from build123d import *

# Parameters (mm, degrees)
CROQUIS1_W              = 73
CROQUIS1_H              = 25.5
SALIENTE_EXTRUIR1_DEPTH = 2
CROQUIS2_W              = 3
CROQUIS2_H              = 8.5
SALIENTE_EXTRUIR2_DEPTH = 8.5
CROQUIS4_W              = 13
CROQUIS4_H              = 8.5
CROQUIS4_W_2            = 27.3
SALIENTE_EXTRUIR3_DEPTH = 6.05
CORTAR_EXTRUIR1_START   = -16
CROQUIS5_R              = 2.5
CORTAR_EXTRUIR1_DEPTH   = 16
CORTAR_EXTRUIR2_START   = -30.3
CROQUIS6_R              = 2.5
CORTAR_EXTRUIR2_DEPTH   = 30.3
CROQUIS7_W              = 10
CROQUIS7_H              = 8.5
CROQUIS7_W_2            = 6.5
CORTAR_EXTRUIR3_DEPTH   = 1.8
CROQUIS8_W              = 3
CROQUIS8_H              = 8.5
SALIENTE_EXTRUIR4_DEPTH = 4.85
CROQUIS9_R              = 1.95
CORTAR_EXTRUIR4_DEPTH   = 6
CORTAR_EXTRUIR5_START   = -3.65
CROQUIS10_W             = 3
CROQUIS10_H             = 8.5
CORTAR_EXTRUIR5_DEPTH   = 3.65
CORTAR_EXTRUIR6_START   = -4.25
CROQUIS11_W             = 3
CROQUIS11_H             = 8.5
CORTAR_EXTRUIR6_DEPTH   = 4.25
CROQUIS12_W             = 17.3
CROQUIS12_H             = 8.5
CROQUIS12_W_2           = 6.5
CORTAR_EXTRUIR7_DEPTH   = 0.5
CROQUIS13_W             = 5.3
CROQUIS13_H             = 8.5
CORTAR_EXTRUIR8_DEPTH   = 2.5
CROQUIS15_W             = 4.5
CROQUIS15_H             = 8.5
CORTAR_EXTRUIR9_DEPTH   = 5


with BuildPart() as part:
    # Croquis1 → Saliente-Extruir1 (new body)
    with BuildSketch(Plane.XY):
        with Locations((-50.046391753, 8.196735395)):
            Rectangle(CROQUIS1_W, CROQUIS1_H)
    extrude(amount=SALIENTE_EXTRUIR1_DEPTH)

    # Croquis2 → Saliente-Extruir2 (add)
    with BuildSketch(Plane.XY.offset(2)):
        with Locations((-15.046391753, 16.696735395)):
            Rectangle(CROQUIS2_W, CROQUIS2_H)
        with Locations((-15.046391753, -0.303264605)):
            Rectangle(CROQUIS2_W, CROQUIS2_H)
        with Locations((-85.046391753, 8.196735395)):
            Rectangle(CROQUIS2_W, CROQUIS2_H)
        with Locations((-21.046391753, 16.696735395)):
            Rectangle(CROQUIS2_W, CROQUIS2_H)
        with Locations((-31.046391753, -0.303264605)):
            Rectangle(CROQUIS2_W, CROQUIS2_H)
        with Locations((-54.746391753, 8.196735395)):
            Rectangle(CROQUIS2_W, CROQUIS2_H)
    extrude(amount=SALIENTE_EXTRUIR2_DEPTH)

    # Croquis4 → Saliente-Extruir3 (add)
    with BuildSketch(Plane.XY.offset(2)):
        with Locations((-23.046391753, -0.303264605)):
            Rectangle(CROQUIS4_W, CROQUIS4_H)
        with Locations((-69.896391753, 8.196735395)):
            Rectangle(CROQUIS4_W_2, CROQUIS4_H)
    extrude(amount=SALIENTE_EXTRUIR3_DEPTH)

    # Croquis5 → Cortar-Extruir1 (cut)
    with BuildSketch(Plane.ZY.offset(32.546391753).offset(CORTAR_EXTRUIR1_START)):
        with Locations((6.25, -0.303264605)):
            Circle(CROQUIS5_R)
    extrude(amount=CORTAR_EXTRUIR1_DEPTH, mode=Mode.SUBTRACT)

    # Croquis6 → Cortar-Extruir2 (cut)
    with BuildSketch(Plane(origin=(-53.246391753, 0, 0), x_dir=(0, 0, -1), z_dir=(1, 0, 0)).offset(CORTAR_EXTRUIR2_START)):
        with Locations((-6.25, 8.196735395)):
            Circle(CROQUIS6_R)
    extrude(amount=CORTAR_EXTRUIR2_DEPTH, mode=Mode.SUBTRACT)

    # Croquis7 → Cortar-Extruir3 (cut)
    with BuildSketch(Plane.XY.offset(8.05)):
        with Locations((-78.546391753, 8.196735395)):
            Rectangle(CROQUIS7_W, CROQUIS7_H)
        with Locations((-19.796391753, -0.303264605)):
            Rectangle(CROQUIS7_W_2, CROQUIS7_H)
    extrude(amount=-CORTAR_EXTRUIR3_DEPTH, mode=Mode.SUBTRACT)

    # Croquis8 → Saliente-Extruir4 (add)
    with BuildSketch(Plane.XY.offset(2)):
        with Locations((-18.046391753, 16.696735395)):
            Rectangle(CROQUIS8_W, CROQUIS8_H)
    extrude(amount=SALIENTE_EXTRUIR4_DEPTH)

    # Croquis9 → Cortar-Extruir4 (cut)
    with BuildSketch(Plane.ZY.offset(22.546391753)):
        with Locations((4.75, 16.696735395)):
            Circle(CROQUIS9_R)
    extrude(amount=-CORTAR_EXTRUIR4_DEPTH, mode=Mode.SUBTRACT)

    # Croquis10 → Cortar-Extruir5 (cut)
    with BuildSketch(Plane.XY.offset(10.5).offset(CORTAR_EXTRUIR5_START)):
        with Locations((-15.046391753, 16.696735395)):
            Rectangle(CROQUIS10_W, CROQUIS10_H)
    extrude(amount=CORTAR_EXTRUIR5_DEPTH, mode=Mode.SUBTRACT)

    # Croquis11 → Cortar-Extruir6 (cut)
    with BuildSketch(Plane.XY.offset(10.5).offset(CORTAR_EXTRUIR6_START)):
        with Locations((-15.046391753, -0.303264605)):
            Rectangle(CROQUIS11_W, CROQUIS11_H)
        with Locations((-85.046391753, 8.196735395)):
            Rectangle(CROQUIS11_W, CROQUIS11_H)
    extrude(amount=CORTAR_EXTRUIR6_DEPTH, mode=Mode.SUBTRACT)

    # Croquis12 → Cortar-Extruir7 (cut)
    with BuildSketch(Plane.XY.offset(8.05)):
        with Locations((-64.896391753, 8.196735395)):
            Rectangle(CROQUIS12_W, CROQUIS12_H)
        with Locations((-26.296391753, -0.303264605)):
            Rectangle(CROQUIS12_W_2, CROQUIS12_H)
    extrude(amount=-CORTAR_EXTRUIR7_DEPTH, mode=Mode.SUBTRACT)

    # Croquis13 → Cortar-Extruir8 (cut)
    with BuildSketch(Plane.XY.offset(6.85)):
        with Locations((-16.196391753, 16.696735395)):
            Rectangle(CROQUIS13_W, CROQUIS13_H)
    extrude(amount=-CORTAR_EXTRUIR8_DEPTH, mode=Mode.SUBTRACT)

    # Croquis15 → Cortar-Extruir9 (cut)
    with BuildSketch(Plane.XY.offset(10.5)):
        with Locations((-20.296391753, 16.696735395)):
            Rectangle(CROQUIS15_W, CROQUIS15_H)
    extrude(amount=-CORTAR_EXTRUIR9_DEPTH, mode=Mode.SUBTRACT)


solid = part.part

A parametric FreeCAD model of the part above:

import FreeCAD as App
import Part
import Sketcher
Q = App.Units.Quantity


def add_polygon(sketch, points):
    """Adds a closed chain of lines whose ends are joined by coincident constraints."""
    first, n = sketch.GeometryCount, len(points)
    for a, b in zip(points, points[1:] + points[:1]):
        sketch.addGeometry(Part.LineSegment(App.Vector(*a, 0), App.Vector(*b, 0)), False)
    for i in range(n):
        sketch.addConstraint(Sketcher.Constraint("Coincident", first + i, 2, first + (i + 1) % n, 1))

doc = App.newDocument("Part")
body = doc.addObject("PartDesign::Body", "Body")

# Sketch on XY plane
sketch1 = body.newObject("Sketcher::SketchObject", "Sketch")
sketch1.AttachmentSupport = (doc.getObject("XY_Plane"), [""])
sketch1.MapMode = "FlatFace"
add_polygon(sketch1, [(-87, 21), (-87, -5), (-14, -5), (-14, 21)])  # lines 0-3
sketch1.addConstraint([
    Sketcher.Constraint("Vertical", 0),
    Sketcher.Constraint("Horizontal", 1),
    Sketcher.Constraint("Vertical", 2),
    Sketcher.Constraint("Horizontal", 3),
    Sketcher.Constraint("DistanceX", 1, 1, 1, 2, Q("73 mm")),
    Sketcher.Constraint("DistanceY", 0, 2, 0, 1, Q("25.5 mm")),
    Sketcher.Constraint("DistanceX", 0, 2, -1, 1, Q("86.546392 mm")),
    Sketcher.Constraint("DistanceY", 0, 2, -1, 1, Q("4.553265 mm")),
])
pad1 = body.newObject("PartDesign::Pad", "Pad")
pad1.Profile = sketch1
pad1.Length = 2

# Sketch on XY plane
sketch2 = body.newObject("Sketcher::SketchObject", "Sketch001")
sketch2.AttachmentSupport = (doc.getObject("XY_Plane"), [""])
sketch2.MapMode = "FlatFace"
sketch2.AttachmentOffset = App.Placement(App.Vector(0, 0, 2), App.Rotation())
add_polygon(sketch2, [(-16.5, 20.9), (-16.5, 12.4), (-13.5, 12.4), (-13.5, 20.9)])  # lines 0-3
add_polygon(sketch2, [(-16.5, 3.9), (-16.5, -4.6), (-13.5, -4.6), (-13.5, 3.9)])  # lines 4-7
add_polygon(sketch2, [(-86.5, 12.4), (-86.5, 3.9), (-83.5, 3.9), (-83.5, 12.4)])  # lines 8-11
add_polygon(sketch2, [(-22.5, 20.9), (-22.5, 12.4), (-19.5, 12.4), (-19.5, 20.9)])  # lines 12-15
add_polygon(sketch2, [(-32.5, 3.9), (-32.5, -4.6), (-29.5, -4.6), (-29.5, 3.9)])  # lines 16-19
add_polygon(sketch2, [(-56.2, 12.4), (-56.2, 3.9), (-53.2, 3.9), (-53.2, 12.4)])  # lines 20-23
sketch2.addConstraint([
    Sketcher.Constraint("Vertical", 0),
    Sketcher.Constraint("Horizontal", 1),
    Sketcher.Constraint("Vertical", 2),
    Sketcher.Constraint("Horizontal", 3),
    Sketcher.Constraint("Vertical", 4),
    Sketcher.Constraint("Horizontal", 5),
    Sketcher.Constraint("Vertical", 6),
    Sketcher.Constraint("Horizontal", 7),
    Sketcher.Constraint("Vertical", 8),
    Sketcher.Constraint("Horizontal", 9),
    Sketcher.Constraint("Vertical", 10),
    Sketcher.Constraint("Horizontal", 11),
    Sketcher.Constraint("Vertical", 12),
    Sketcher.Constraint("Horizontal", 13),
    Sketcher.Constraint("Vertical", 14),
    Sketcher.Constraint("Horizontal", 15),
    Sketcher.Constraint("Vertical", 16),
    Sketcher.Constraint("Horizontal", 17),
    Sketcher.Constraint("Vertical", 18),
    Sketcher.Constraint("Horizontal", 19),
    Sketcher.Constraint("Vertical", 20),
    Sketcher.Constraint("Horizontal", 21),
    Sketcher.Constraint("Vertical", 22),
    Sketcher.Constraint("Horizontal", 23),
    Sketcher.Constraint("Horizontal", 7, 2, 8, 2),
    Sketcher.Constraint("Horizontal", 1, 2, 10, 2),
    Sketcher.Constraint("Horizontal", 11, 2, 12, 2),
    Sketcher.Constraint("Horizontal", 3, 2, 14, 2),
    Sketcher.Constraint("Horizontal", 5, 2, 16, 2),
    Sketcher.Constraint("Horizontal", 9, 2, 18, 2),
    Sketcher.Constraint("Horizontal", 19, 2, 20, 2),
    Sketcher.Constraint("Horizontal", 13, 2, 22, 2),
    Sketcher.Constraint("Vertical", 3, 2, 4, 2),
    Sketcher.Constraint("Vertical", 2, 2, 5, 2),
    Sketcher.Constraint("Equal", 7, 9),
    Sketcher.Constraint("Equal", 11, 13),
    Sketcher.Constraint("Equal", 15, 17),
    Sketcher.Constraint("Equal", 19, 21),
    Sketcher.Constraint("Equal", 2, 4),
    Sketcher.Constraint("Equal", 6, 8),
    Sketcher.Constraint("DistanceX", 1, 1, 1, 2, Q("3 mm")),
    Sketcher.Constraint("DistanceY", 0, 2, 0, 1, Q("8.5 mm")),
    Sketcher.Constraint("DistanceX", 8, 2, 7, 2, Q("70 mm")),
    Sketcher.Constraint("DistanceX", 12, 2, 0, 2, Q("6 mm")),
    Sketcher.Constraint("DistanceX", 16, 2, 4, 2, Q("16 mm")),
    Sketcher.Constraint("DistanceX", 20, 2, 19, 2, Q("23.7 mm")),
    Sketcher.Constraint("DistanceX", 0, 2, -1, 1, Q("16.546392 mm")),
    Sketcher.Constraint("DistanceY", -1, 1, 0, 2, Q("12.446735 mm")),
])
pad2 = body.newObject("PartDesign::Pad", "Pad001")
pad2.Profile = sketch2
pad2.Length = 8.5

# Sketch on XY plane
sketch3 = body.newObject("Sketcher::SketchObject", "Sketch002")
sketch3.AttachmentSupport = (doc.getObject("XY_Plane"), [""])
sketch3.MapMode = "FlatFace"
sketch3.AttachmentOffset = App.Placement(App.Vector(0, 0, 2), App.Rotation())
add_polygon(sketch3, [(-30, 4), (-30, -5), (-17, -5), (-17, 4)])  # lines 0-3
add_polygon(sketch3, [(-84, 12), (-84, 4), (-56, 4), (-56, 12)])  # lines 4-7
sketch3.addConstraint([
    Sketcher.Constraint("Vertical", 0),
    Sketcher.Constraint("Horizontal", 1),
    Sketcher.Constraint("Vertical", 2),
    Sketcher.Constraint("Horizontal", 3),
    Sketcher.Constraint("Vertical", 4),
    Sketcher.Constraint("Horizontal", 5),
    Sketcher.Constraint("Vertical", 6),
    Sketcher.Constraint("Horizontal", 7),
    Sketcher.Constraint("Horizontal", 3, 2, 4, 2),
    Sketcher.Constraint("Equal", 2, 4),
    Sketcher.Constraint("DistanceX", 1, 1, 1, 2, Q("13 mm")),
    Sketcher.Constraint("DistanceX", 5, 1, 5, 2, Q("27.3 mm")),
    Sketcher.Constraint("DistanceY", 0, 2, 0, 1, Q("8.5 mm")),
    Sketcher.Constraint("DistanceX", 4, 2, 3, 2, Q("54 mm")),
    Sketcher.Constraint("DistanceX", 0, 2, -1, 1, Q("29.546392 mm")),
    Sketcher.Constraint("DistanceY", 0, 2, -1, 1, Q("4.553265 mm")),
])
pad3 = body.newObject("PartDesign::Pad", "Pad002")
pad3.Profile = sketch3
pad3.Length = 6.05

# Sketch on YZ plane
sketch4 = body.newObject("Sketcher::SketchObject", "Sketch003")
sketch4.AttachmentSupport = (doc.getObject("YZ_Plane"), [""])
sketch4.MapMode = "FlatFace"
sketch4.AttachmentOffset = App.Placement(App.Vector(0, 0, -16.546392), App.Rotation())
sketch4.addGeometry(Part.Circle(App.Vector(-0.3, 6.2, 0), App.Vector(0, 0, 1), 2.5), False)
sketch4.addConstraint([
    Sketcher.Constraint("Diameter", 0, Q("5 mm")),
    Sketcher.Constraint("DistanceY", -1, 1, 0, 3, Q("6.25 mm")),
    Sketcher.Constraint("DistanceX", 0, 3, -1, 1, Q("0.303265 mm")),
])
pocket1 = body.newObject("PartDesign::Pocket", "Pocket")
pocket1.Profile = sketch4
pocket1.Length = 16

# Sketch on YZ plane
sketch5 = body.newObject("Sketcher::SketchObject", "Sketch004")
sketch5.AttachmentSupport = (doc.getObject("YZ_Plane"), [""])
sketch5.MapMode = "FlatFace"
sketch5.AttachmentOffset = App.Placement(App.Vector(0, 0, -83.546392), App.Rotation())
sketch5.addGeometry(Part.Circle(App.Vector(8.2, 6.2, 0), App.Vector(0, 0, 1), 2.5), False)
sketch5.addConstraint([
    Sketcher.Constraint("Diameter", 0, Q("5 mm")),
    Sketcher.Constraint("DistanceY", -1, 1, 0, 3, Q("6.25 mm")),
    Sketcher.Constraint("DistanceX", -1, 1, 0, 3, Q("8.196735 mm")),
])
pocket2 = body.newObject("PartDesign::Pocket", "Pocket001")
pocket2.Profile = sketch5
pocket2.Length = 30.3
pocket2.Reversed = True

# Sketch on XY plane
sketch6 = body.newObject("Sketcher::SketchObject", "Sketch005")
sketch6.AttachmentSupport = (doc.getObject("XY_Plane"), [""])
sketch6.MapMode = "FlatFace"
sketch6.AttachmentOffset = App.Placement(App.Vector(0, 0, 8.05), App.Rotation())
add_polygon(sketch6, [(-84, 12), (-84, 4), (-74, 4), (-74, 12)])  # lines 0-3
add_polygon(sketch6, [(-23, 4), (-23, -5), (-17, -5), (-17, 4)])  # lines 4-7
sketch6.addConstraint([
    Sketcher.Constraint("Vertical", 0),
    Sketcher.Constraint("Horizontal", 1),
    Sketcher.Constraint("Vertical", 2),
    Sketcher.Constraint("Horizontal", 3),
    Sketcher.Constraint("Vertical", 4),
    Sketcher.Constraint("Horizontal", 5),
    Sketcher.Constraint("Vertical", 6),
    Sketcher.Constraint("Horizontal", 7),
    Sketcher.Constraint("Horizontal", 1, 2, 6, 2),
    Sketcher.Constraint("Equal", 2, 4),
    Sketcher.Constraint("DistanceX", 1, 1, 1, 2, Q("10 mm")),
    Sketcher.Constraint("DistanceX", 5, 1, 5, 2, Q("6.5 mm")),
    Sketcher.Constraint("DistanceY", 0, 2, 0, 1, Q("8.5 mm")),
    Sketcher.Constraint("DistanceX", 1, 2, 5, 2, Q("57 mm")),
    Sketcher.Constraint("DistanceX", 0, 2, -1, 1, Q("83.546392 mm")),
    Sketcher.Constraint("DistanceY", -1, 1, 0, 2, Q("3.946735 mm")),
])
pocket3 = body.newObject("PartDesign::Pocket", "Pocket002")
pocket3.Profile = sketch6
pocket3.Length = 1.8

# Sketch on XY plane
sketch7 = body.newObject("Sketcher::SketchObject", "Sketch006")
sketch7.AttachmentSupport = (doc.getObject("XY_Plane"), [""])
sketch7.MapMode = "FlatFace"
sketch7.AttachmentOffset = App.Placement(App.Vector(0, 0, 2), App.Rotation())
add_polygon(sketch7, [(-19.5, 20.9), (-19.5, 12.4), (-16.5, 12.4), (-16.5, 20.9)])  # lines 0-3
sketch7.addConstraint([
    Sketcher.Constraint("Vertical", 0),
    Sketcher.Constraint("Horizontal", 1),
    Sketcher.Constraint("Vertical", 2),
    Sketcher.Constraint("Horizontal", 3),
    Sketcher.Constraint("DistanceX", 1, 1, 1, 2, Q("3 mm")),
    Sketcher.Constraint("DistanceY", 0, 2, 0, 1, Q("8.5 mm")),
    Sketcher.Constraint("DistanceX", 0, 2, -1, 1, Q("19.546392 mm")),
    Sketcher.Constraint("DistanceY", -1, 1, 0, 2, Q("12.446735 mm")),
])
pad4 = body.newObject("PartDesign::Pad", "Pad003")
pad4.Profile = sketch7
pad4.Length = 4.85

# Sketch on YZ plane
sketch8 = body.newObject("Sketcher::SketchObject", "Sketch007")
sketch8.AttachmentSupport = (doc.getObject("YZ_Plane"), [""])
sketch8.MapMode = "FlatFace"
sketch8.AttachmentOffset = App.Placement(App.Vector(0, 0, -22.546392), App.Rotation())
sketch8.addGeometry(Part.Circle(App.Vector(16.7, 4.8, 0), App.Vector(0, 0, 1), 1.9), False)
sketch8.addConstraint([
    Sketcher.Constraint("Diameter", 0, Q("3.9 mm")),
    Sketcher.Constraint("DistanceY", -1, 1, 0, 3, Q("4.75 mm")),
    Sketcher.Constraint("DistanceX", -1, 1, 0, 3, Q("16.696735 mm")),
])
pocket4 = body.newObject("PartDesign::Pocket", "Pocket003")
pocket4.Profile = sketch8
pocket4.Length = 6
pocket4.Reversed = True

# Sketch on XY plane
sketch9 = body.newObject("Sketcher::SketchObject", "Sketch008")
sketch9.AttachmentSupport = (doc.getObject("XY_Plane"), [""])
sketch9.MapMode = "FlatFace"
sketch9.AttachmentOffset = App.Placement(App.Vector(0, 0, 6.85), App.Rotation())
add_polygon(sketch9, [(-16.5, 20.9), (-16.5, 12.4), (-13.5, 12.4), (-13.5, 20.9)])  # lines 0-3
sketch9.addConstraint([
    Sketcher.Constraint("Vertical", 0),
    Sketcher.Constraint("Horizontal", 1),
    Sketcher.Constraint("Vertical", 2),
    Sketcher.Constraint("Horizontal", 3),
    Sketcher.Constraint("DistanceX", 1, 1, 1, 2, Q("3 mm")),
    Sketcher.Constraint("DistanceY", 0, 2, 0, 1, Q("8.5 mm")),
    Sketcher.Constraint("DistanceX", 0, 2, -1, 1, Q("16.546392 mm")),
    Sketcher.Constraint("DistanceY", -1, 1, 0, 2, Q("12.446735 mm")),
])
pocket5 = body.newObject("PartDesign::Pocket", "Pocket004")
pocket5.Profile = sketch9
pocket5.Length = 3.65
pocket5.Reversed = True

# Sketch on XY plane
sketch10 = body.newObject("Sketcher::SketchObject", "Sketch009")
sketch10.AttachmentSupport = (doc.getObject("XY_Plane"), [""])
sketch10.MapMode = "FlatFace"
sketch10.AttachmentOffset = App.Placement(App.Vector(0, 0, 6.25), App.Rotation())
add_polygon(sketch10, [(-16.5, 3.9), (-16.5, -4.6), (-13.5, -4.6), (-13.5, 3.9)])  # lines 0-3
add_polygon(sketch10, [(-86.5, 12.4), (-86.5, 3.9), (-83.5, 3.9), (-83.5, 12.4)])  # lines 4-7
sketch10.addConstraint([
    Sketcher.Constraint("Vertical", 0),
    Sketcher.Constraint("Horizontal", 1),
    Sketcher.Constraint("Vertical", 2),
    Sketcher.Constraint("Horizontal", 3),
    Sketcher.Constraint("Vertical", 4),
    Sketcher.Constraint("Horizontal", 5),
    Sketcher.Constraint("Vertical", 6),
    Sketcher.Constraint("Horizontal", 7),
    Sketcher.Constraint("Horizontal", 3, 2, 4, 2),
    Sketcher.Constraint("Equal", 3, 5),
    Sketcher.Constraint("Equal", 2, 4),
    Sketcher.Constraint("DistanceX", 1, 1, 1, 2, Q("3 mm")),
    Sketcher.Constraint("DistanceY", 0, 2, 0, 1, Q("8.5 mm")),
    Sketcher.Constraint("DistanceX", 4, 2, 3, 2, Q("70 mm")),
    Sketcher.Constraint("DistanceX", 0, 2, -1, 1, Q("16.546392 mm")),
    Sketcher.Constraint("DistanceY", 0, 2, -1, 1, Q("4.553265 mm")),
])
pocket6 = body.newObject("PartDesign::Pocket", "Pocket005")
pocket6.Profile = sketch10
pocket6.Length = 4.25
pocket6.Reversed = True

# Sketch on XY plane
sketch11 = body.newObject("Sketcher::SketchObject", "Sketch010")
sketch11.AttachmentSupport = (doc.getObject("XY_Plane"), [""])
sketch11.MapMode = "FlatFace"
sketch11.AttachmentOffset = App.Placement(App.Vector(0, 0, 8.05), App.Rotation())
add_polygon(sketch11, [(-74, 12), (-74, 4), (-56, 4), (-56, 12)])  # lines 0-3
add_polygon(sketch11, [(-30, 4), (-30, -5), (-23, -5), (-23, 4)])  # lines 4-7
sketch11.addConstraint([
    Sketcher.Constraint("Vertical", 0),
    Sketcher.Constraint("Horizontal", 1),
    Sketcher.Constraint("Vertical", 2),
    Sketcher.Constraint("Horizontal", 3),
    Sketcher.Constraint("Vertical", 4),
    Sketcher.Constraint("Horizontal", 5),
    Sketcher.Constraint("Vertical", 6),
    Sketcher.Constraint("Horizontal", 7),
    Sketcher.Constraint("Horizontal", 1, 2, 6, 2),
    Sketcher.Constraint("Equal", 2, 4),
    Sketcher.Constraint("DistanceX", 1, 1, 1, 2, Q("17.3 mm")),
    Sketcher.Constraint("DistanceX", 5, 1, 5, 2, Q("6.5 mm")),
    Sketcher.Constraint("DistanceY", 0, 2, 0, 1, Q("8.5 mm")),
    Sketcher.Constraint("DistanceX", 0, 2, 4, 2, Q("44 mm")),
    Sketcher.Constraint("DistanceX", 0, 2, -1, 1, Q("73.546392 mm")),
    Sketcher.Constraint("DistanceY", -1, 1, 0, 2, Q("3.946735 mm")),
])
pocket7 = body.newObject("PartDesign::Pocket", "Pocket006")
pocket7.Profile = sketch11
pocket7.Length = 0.5

# Sketch on XY plane
sketch12 = body.newObject("Sketcher::SketchObject", "Sketch011")
sketch12.AttachmentSupport = (doc.getObject("XY_Plane"), [""])
sketch12.MapMode = "FlatFace"
sketch12.AttachmentOffset = App.Placement(App.Vector(0, 0, 6.85), App.Rotation())
add_polygon(sketch12, [(-19, 21), (-19, 12), (-14, 12), (-14, 21)])  # lines 0-3
sketch12.addConstraint([
    Sketcher.Constraint("Vertical", 0),
    Sketcher.Constraint("Horizontal", 1),
    Sketcher.Constraint("Vertical", 2),
    Sketcher.Constraint("Horizontal", 3),
    Sketcher.Constraint("DistanceX", 1, 1, 1, 2, Q("5.3 mm")),
    Sketcher.Constraint("DistanceY", 0, 2, 0, 1, Q("8.5 mm")),
    Sketcher.Constraint("DistanceX", 0, 2, -1, 1, Q("18.846392 mm")),
    Sketcher.Constraint("DistanceY", -1, 1, 0, 2, Q("12.446735 mm")),
])
pocket8 = body.newObject("PartDesign::Pocket", "Pocket007")
pocket8.Profile = sketch12
pocket8.Length = 2.5

# Sketch on XY plane
sketch13 = body.newObject("Sketcher::SketchObject", "Sketch012")
sketch13.AttachmentSupport = (doc.getObject("XY_Plane"), [""])
sketch13.MapMode = "FlatFace"
sketch13.AttachmentOffset = App.Placement(App.Vector(0, 0, 10.5), App.Rotation())
add_polygon(sketch13, [(-22.5, 20.9), (-22.5, 12.4), (-18, 12.4), (-18, 20.9)])  # lines 0-3
sketch13.addConstraint([
    Sketcher.Constraint("Vertical", 0),
    Sketcher.Constraint("Horizontal", 1),
    Sketcher.Constraint("Vertical", 2),
    Sketcher.Constraint("Horizontal", 3),
    Sketcher.Constraint("DistanceX", 1, 1, 1, 2, Q("4.5 mm")),
    Sketcher.Constraint("DistanceY", 0, 2, 0, 1, Q("8.5 mm")),
    Sketcher.Constraint("DistanceX", 0, 2, -1, 1, Q("22.546392 mm")),
    Sketcher.Constraint("DistanceY", -1, 1, 0, 2, Q("12.446735 mm")),
])
pocket9 = body.newObject("PartDesign::Pocket", "Pocket008")
pocket9.Profile = sketch13
pocket9.Length = 5

doc.recompute()
